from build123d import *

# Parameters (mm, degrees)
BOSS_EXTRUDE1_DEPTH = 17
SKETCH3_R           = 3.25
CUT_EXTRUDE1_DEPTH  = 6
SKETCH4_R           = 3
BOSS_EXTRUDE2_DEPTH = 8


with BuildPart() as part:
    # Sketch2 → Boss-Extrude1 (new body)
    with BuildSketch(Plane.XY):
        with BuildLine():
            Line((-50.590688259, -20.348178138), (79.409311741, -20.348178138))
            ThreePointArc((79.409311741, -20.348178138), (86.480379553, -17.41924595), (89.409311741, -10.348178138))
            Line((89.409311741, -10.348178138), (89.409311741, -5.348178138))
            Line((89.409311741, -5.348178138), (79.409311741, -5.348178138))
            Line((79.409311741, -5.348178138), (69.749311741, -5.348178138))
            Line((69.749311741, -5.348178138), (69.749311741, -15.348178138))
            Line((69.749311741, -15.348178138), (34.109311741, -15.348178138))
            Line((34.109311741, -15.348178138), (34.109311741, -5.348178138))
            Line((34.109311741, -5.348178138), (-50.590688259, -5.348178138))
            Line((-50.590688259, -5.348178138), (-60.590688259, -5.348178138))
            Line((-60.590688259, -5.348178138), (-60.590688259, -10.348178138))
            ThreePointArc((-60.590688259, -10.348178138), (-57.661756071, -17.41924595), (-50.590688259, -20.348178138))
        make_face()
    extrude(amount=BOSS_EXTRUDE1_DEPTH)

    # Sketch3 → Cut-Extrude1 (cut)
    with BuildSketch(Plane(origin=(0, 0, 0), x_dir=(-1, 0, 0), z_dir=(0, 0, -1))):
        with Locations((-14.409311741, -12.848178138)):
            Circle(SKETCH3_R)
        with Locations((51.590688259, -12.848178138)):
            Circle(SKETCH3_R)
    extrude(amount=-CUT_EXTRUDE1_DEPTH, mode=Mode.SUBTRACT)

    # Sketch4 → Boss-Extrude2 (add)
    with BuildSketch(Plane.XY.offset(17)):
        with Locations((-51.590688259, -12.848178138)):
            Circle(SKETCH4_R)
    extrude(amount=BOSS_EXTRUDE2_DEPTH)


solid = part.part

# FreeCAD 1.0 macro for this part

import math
import FreeCAD as App
import Part
import Sketcher
from FreeCAD import Vector
Q = App.Units.Quantity

doc = App.newDocument("Part")
params = doc.addObject("Spreadsheet::Sheet", "Params")
for row, (alias, value) in enumerate([
    ("sketch1_radius", "10 mm"),
    ("sketch1_width", "130 mm"),
    ("sketch1_height", "5 mm"),
    ("sketch1_height2", "10 mm"),
    ("sketch1_width2", "94.7 mm"),
    ("pad1_length", "17 mm"),
    ("sketch2_diameter", "6.5 mm"),
    ("pocket1_length", "6 mm"),
    ("sketch3_diameter", "6 mm"),
    ("pad2_length", "8 mm"),
], start=1):
    params.set(f"A{row}", alias)
    params.set(f"B{row}", "=" + value)
    params.setAlias(f"B{row}", alias)

body = doc.addObject("PartDesign::Body", "Body")

sketch1 = doc.addObject("Sketcher::SketchObject", "Sketch")
body.addObject(sketch1)
sketch1.AttachmentSupport = (doc.XY_Plane, [""])
sketch1.MapMode = "FlatFace"
sketch1.addGeometry([
    Part.LineSegment(Vector(-51, -20, 0), Vector(79, -20, 0)),
    Part.ArcOfCircle(Part.Circle(Vector(79, -10, 0), Vector(0, 0, 1), 10), math.radians(-90), math.radians(0)),
    Part.LineSegment(Vector(89, -10, 0), Vector(89, -5, 0)),
    Part.LineSegment(Vector(89, -5, 0), Vector(70, -5, 0)),
    Part.LineSegment(Vector(70, -5, 0), Vector(70, -15, 0)),
    Part.LineSegment(Vector(70, -15, 0), Vector(34, -15, 0)),
    Part.LineSegment(Vector(34, -15, 0), Vector(34, -5, 0)),
    Part.LineSegment(Vector(34, -5, 0), Vector(-61, -5, 0)),
    Part.LineSegment(Vector(-61, -5, 0), Vector(-61, -10, 0)),
    Part.ArcOfCircle(Part.Circle(Vector(-51, -10, 0), Vector(0, 0, 1), 10), math.radians(180), math.radians(270)),
], False)
sketch1.addConstraint([
    Sketcher.Constraint("Tangent", 0, 2, 1, 1),
    Sketcher.Constraint("Tangent", 1, 2, 2, 1),
    Sketcher.Constraint("Coincident", 2, 2, 3, 1),
    Sketcher.Constraint("Coincident", 3, 2, 4, 1),
    Sketcher.Constraint("Coincident", 4, 2, 5, 1),
    Sketcher.Constraint("Coincident", 5, 2, 6, 1),
    Sketcher.Constraint("Coincident", 6, 2, 7, 1),
    Sketcher.Constraint("Coincident", 7, 2, 8, 1),
    Sketcher.Constraint("Tangent", 8, 2, 9, 1),
    Sketcher.Constraint("Tangent", 9, 2, 0, 1),
    Sketcher.Constraint("Horizontal", 0),
    Sketcher.Constraint("Vertical", 2),
    Sketcher.Constraint("Horizontal", 3),
    Sketcher.Constraint("Vertical", 4),
    Sketcher.Constraint("Horizontal", 5),
    Sketcher.Constraint("Vertical", 6),
    Sketcher.Constraint("Horizontal", 7),
    Sketcher.Constraint("Vertical", 8),
    Sketcher.Constraint("Equal", 1, 9),
    Sketcher.Constraint("Horizontal", 3, 2, 6, 2),
    Sketcher.Constraint("Radius", 1, Q("10 mm")),
    Sketcher.Constraint("DistanceX", 0, 1, 0, 2, Q("130 mm")),
    Sketcher.Constraint("DistanceY", 2, 1, 2, 2, Q("5 mm")),
    Sketcher.Constraint("DistanceY", 4, 2, 4, 1, Q("10 mm")),
    Sketcher.Constraint("DistanceX", 7, 2, 7, 1, Q("94.7 mm")),
    Sketcher.Constraint("DistanceX", 3, 2, 3, 1, Q("19.66 mm")),
    Sketcher.Constraint("DistanceX", -1, 1, 1, 3, Q("79.409312 mm")),
    Sketcher.Constraint("DistanceY", 1, 3, -1, 1, Q("10.348178 mm")),
])
sketch1.setExpression("Constraints[20]", "Params.sketch1_radius")
sketch1.setExpression("Constraints[21]", "Params.sketch1_width")
sketch1.setExpression("Constraints[22]", "Params.sketch1_height")
sketch1.setExpression("Constraints[23]", "Params.sketch1_height2")
sketch1.setExpression("Constraints[24]", "Params.sketch1_width2")
pad1 = doc.addObject("PartDesign::Pad", "Pad")
body.addObject(pad1)
pad1.Profile = sketch1
pad1.setExpression("Length", "Params.pad1_length")

sketch2 = doc.addObject("Sketcher::SketchObject", "Sketch001")
body.addObject(sketch2)
sketch2.AttachmentSupport = (doc.XY_Plane, [""])
sketch2.MapMode = "FlatFace"
sketch2.addGeometry([
    Part.Circle(Vector(14.4, -12.8, 0), Vector(0, 0, 1), 3.2),
    Part.Circle(Vector(-51.6, -12.8, 0), Vector(0, 0, 1), 3.2),
], False)
sketch2.addConstraint([
    Sketcher.Constraint("Equal", 0, 1),
    Sketcher.Constraint("Horizontal", 0, 3, 1, 3),
    Sketcher.Constraint("Diameter", 0, Q("6.5 mm")),
    Sketcher.Constraint("DistanceX", 1, 3, 0, 3, Q("66 mm")),
    Sketcher.Constraint("DistanceX", -1, 1, 0, 3, Q("14.409312 mm")),
    Sketcher.Constraint("DistanceY", 0, 3, -1, 1, Q("12.848178 mm")),
])
sketch2.setExpression("Constraints[2]", "Params.sketch2_diameter")
pocket1 = doc.addObject("PartDesign::Pocket", "Pocket")
body.addObject(pocket1)
pocket1.Profile = sketch2
pocket1.setExpression("Length", "Params.pocket1_length")
pocket1.Reversed = True

sketch3 = doc.addObject("Sketcher::SketchObject", "Sketch002")
body.addObject(sketch3)
sketch3.AttachmentSupport = (doc.XY_Plane, [""])
sketch3.MapMode = "FlatFace"
sketch3.AttachmentOffset = App.Placement(Vector(0, 0, 17), App.Rotation())
sketch3.addGeometry(Part.Circle(Vector(-51.6, -12.8, 0), Vector(0, 0, 1), 3), False)
sketch3.addConstraint([
    Sketcher.Constraint("Diameter", 0, Q("6 mm")),
    Sketcher.Constraint("DistanceX", 0, 3, -1, 1, Q("51.590688 mm")),
    Sketcher.Constraint("DistanceY", 0, 3, -1, 1, Q("12.848178 mm")),
])
sketch3.setExpression("Constraints[0]", "Params.sketch3_diameter")
pad2 = doc.addObject("PartDesign::Pad", "Pad001")
body.addObject(pad2)
pad2.Profile = sketch3
pad2.setExpression("Length", "Params.pad2_length")

doc.recompute()
